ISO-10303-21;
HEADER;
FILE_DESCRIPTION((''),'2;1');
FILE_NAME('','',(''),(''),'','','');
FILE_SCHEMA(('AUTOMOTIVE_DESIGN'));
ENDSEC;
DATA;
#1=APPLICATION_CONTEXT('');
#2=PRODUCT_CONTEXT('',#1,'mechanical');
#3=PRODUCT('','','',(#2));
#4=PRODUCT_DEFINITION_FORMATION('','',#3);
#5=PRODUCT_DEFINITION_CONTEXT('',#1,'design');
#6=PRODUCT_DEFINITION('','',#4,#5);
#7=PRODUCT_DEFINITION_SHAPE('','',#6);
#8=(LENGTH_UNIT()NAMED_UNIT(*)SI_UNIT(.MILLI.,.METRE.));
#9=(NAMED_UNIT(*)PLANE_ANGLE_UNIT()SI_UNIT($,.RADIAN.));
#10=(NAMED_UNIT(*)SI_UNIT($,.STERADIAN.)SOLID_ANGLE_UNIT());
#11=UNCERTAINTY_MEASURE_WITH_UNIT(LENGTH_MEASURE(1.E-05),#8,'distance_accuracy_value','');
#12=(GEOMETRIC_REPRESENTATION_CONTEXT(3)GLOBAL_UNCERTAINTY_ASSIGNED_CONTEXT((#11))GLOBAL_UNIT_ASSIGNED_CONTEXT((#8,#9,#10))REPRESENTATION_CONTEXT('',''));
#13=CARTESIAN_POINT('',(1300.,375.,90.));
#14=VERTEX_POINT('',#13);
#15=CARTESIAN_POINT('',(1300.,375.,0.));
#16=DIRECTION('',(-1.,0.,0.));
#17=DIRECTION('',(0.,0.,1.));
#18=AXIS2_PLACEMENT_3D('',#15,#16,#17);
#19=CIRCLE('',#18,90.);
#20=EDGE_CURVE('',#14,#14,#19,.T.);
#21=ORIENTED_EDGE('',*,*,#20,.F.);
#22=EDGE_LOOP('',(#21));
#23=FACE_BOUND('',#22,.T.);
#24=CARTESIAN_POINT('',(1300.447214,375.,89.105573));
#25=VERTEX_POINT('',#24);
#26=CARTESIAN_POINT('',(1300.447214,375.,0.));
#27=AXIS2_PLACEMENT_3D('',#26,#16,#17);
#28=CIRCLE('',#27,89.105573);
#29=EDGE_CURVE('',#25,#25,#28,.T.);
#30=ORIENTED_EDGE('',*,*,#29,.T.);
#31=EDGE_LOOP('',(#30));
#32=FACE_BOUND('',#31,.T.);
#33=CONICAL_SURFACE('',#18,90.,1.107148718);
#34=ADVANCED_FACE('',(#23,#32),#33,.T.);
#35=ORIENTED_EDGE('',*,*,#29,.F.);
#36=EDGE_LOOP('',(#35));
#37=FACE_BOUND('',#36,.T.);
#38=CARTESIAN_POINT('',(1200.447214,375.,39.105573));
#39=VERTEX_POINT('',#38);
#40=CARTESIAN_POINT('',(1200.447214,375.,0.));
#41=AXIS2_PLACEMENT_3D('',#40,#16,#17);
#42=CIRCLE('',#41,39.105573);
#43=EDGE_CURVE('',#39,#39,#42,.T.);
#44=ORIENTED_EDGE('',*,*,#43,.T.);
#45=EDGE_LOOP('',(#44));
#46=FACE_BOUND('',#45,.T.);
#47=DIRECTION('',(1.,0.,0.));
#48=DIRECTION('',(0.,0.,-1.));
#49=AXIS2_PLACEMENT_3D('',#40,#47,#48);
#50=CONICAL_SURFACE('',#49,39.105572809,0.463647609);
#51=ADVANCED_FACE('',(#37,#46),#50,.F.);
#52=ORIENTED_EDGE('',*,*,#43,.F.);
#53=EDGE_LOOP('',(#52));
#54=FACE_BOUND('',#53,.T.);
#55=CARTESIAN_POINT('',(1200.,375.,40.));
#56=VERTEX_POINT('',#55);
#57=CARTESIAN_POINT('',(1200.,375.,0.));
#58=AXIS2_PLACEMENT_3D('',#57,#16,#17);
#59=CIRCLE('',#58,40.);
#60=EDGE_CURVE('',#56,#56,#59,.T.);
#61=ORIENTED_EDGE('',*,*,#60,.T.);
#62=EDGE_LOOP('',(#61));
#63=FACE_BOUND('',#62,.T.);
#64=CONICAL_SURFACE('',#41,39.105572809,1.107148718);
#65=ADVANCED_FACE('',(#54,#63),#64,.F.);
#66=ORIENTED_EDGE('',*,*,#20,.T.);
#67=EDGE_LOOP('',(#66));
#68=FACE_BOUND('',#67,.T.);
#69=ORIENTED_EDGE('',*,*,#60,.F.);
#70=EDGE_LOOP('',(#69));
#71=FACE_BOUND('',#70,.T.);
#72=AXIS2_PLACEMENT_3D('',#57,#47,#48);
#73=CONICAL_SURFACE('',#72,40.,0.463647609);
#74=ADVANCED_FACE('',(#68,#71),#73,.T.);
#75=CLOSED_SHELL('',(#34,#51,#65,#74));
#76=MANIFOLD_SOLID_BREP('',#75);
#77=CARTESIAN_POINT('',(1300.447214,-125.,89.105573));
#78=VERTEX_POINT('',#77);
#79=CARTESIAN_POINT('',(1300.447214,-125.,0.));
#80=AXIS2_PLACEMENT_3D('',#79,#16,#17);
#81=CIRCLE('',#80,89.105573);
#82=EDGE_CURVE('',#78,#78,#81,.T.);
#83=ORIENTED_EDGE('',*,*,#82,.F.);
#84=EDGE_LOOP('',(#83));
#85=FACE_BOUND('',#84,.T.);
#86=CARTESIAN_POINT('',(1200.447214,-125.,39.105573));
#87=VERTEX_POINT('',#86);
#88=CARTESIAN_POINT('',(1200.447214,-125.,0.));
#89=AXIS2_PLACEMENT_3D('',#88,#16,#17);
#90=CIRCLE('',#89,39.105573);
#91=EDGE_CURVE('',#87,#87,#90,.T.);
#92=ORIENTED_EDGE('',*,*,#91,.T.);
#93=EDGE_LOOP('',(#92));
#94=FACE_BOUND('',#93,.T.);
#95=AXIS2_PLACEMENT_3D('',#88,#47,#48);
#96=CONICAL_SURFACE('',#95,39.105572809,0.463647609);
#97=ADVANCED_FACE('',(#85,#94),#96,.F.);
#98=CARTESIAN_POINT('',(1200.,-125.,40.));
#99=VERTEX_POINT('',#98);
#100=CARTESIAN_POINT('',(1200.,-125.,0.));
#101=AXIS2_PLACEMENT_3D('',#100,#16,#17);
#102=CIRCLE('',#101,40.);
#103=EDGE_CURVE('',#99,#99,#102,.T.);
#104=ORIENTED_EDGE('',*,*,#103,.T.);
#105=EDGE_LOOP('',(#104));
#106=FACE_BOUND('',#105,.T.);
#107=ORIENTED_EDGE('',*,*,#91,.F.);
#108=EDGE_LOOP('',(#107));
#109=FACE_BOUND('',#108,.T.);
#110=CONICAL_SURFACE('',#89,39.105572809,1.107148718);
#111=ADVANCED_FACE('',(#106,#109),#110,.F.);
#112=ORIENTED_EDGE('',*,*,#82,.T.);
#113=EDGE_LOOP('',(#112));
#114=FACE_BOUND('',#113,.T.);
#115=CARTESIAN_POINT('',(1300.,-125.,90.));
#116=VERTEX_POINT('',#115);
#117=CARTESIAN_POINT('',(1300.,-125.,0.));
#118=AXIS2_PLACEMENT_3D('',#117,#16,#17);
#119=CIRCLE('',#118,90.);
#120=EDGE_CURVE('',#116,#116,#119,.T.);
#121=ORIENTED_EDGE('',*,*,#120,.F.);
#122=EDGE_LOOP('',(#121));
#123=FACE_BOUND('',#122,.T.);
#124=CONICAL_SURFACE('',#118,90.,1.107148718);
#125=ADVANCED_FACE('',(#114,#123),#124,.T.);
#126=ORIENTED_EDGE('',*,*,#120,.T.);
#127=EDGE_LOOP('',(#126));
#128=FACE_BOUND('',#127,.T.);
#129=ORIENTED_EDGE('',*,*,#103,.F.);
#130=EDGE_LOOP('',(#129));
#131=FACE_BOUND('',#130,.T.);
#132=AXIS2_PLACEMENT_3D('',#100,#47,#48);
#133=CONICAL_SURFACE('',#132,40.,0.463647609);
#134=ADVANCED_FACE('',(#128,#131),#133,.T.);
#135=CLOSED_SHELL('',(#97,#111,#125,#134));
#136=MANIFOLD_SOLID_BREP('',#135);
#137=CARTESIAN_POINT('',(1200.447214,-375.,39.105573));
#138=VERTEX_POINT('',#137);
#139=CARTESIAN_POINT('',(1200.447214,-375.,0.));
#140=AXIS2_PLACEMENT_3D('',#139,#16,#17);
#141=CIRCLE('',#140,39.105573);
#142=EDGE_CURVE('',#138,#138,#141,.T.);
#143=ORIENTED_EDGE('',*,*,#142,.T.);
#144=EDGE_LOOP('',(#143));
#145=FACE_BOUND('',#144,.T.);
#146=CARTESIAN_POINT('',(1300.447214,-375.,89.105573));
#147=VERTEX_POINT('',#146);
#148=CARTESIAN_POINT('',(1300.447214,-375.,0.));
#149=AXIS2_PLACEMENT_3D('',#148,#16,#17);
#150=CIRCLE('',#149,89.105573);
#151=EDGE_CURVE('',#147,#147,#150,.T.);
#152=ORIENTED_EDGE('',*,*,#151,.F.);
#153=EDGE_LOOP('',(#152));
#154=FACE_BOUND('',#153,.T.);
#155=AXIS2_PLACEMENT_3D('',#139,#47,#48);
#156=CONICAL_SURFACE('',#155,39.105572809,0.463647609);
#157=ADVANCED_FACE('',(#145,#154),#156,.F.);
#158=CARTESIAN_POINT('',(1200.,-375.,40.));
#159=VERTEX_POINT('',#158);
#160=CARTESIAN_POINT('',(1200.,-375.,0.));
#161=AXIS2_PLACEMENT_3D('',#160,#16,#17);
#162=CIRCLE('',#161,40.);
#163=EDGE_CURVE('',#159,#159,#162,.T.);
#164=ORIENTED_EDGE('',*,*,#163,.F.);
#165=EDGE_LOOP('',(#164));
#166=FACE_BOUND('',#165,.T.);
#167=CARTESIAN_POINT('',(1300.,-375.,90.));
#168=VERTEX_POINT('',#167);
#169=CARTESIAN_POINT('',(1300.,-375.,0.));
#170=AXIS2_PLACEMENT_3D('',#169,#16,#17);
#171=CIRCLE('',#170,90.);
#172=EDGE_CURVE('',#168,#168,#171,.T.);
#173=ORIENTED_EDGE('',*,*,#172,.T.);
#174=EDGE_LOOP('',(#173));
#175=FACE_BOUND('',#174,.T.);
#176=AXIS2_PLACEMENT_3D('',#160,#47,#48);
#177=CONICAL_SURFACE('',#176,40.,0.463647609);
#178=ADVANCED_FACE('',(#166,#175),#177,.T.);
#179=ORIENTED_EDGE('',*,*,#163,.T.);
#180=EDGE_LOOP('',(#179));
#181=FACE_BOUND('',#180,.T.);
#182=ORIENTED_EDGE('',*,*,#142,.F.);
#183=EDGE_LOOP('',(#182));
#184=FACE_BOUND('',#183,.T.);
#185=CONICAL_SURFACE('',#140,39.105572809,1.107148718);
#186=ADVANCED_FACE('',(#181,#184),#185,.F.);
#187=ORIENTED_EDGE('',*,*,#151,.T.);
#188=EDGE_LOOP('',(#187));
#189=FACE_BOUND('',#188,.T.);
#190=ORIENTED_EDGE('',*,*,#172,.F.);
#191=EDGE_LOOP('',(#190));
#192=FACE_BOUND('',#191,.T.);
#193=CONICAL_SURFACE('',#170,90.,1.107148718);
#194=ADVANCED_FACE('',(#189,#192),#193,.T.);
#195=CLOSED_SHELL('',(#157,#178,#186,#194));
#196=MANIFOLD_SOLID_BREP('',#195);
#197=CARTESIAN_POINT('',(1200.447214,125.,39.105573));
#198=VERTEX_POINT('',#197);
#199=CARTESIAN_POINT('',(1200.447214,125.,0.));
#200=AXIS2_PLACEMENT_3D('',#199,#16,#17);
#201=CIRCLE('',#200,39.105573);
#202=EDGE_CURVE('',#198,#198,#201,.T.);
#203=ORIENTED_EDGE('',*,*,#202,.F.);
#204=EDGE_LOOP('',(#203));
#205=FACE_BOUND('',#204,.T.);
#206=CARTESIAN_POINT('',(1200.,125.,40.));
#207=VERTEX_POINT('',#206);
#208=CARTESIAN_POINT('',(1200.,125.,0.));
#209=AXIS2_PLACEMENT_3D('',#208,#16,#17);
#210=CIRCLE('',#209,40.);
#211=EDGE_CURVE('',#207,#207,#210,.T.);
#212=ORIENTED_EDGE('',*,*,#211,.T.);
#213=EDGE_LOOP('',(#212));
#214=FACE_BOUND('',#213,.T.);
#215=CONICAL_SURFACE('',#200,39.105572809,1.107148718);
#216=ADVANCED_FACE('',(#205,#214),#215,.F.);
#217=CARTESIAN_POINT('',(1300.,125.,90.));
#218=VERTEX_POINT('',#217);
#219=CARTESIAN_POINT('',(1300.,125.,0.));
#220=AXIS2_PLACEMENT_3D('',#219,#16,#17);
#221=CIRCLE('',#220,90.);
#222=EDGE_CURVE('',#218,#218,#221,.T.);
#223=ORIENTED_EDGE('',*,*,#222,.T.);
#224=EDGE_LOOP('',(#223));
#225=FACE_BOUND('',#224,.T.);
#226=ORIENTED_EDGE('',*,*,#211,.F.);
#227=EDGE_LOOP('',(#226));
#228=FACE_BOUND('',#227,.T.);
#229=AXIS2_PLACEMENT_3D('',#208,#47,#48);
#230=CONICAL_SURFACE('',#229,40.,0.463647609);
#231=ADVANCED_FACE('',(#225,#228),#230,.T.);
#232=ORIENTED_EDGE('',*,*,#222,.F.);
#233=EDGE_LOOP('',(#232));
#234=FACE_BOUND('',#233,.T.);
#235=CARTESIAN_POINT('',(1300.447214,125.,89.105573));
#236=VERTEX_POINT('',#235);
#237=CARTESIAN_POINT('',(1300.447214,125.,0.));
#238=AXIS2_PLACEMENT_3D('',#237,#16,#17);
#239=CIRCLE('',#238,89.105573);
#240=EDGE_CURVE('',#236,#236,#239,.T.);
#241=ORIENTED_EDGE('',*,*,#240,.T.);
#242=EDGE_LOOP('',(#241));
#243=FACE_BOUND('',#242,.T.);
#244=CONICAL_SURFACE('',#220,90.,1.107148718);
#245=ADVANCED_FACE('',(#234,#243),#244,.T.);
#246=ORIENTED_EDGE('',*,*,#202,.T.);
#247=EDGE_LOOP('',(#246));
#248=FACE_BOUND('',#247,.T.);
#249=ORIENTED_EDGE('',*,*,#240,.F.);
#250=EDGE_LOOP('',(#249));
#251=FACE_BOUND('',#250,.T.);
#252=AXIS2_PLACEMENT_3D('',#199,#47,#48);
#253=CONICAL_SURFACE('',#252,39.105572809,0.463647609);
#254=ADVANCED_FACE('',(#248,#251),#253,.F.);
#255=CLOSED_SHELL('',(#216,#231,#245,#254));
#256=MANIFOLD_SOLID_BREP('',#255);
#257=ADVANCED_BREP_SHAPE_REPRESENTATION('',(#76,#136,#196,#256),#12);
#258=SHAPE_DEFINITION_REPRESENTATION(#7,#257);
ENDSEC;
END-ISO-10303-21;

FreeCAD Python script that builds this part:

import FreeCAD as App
import Part
import Sketcher
Q = App.Units.Quantity


def add_polygon(sketch, points):
    """Adds a closed chain of lines whose ends are joined by coincident constraints."""
    first, n = sketch.GeometryCount, len(points)
    for a, b in zip(points, points[1:] + points[:1]):
        sketch.addGeometry(Part.LineSegment(App.Vector(*a, 0), App.Vector(*b, 0)), False)
    for i in range(n):
        sketch.addConstraint(Sketcher.Constraint("Coincident", first + i, 2, first + (i + 1) % n, 1))

doc = App.newDocument("Part")
body = doc.addObject("PartDesign::Body", "Body")

# Sketch on XY plane
sketch1 = body.newObject("Sketcher::SketchObject", "Sketch")
sketch1.AttachmentSupport = (doc.getObject("XY_Plane"), [""])
sketch1.MapMode = "FlatFace"
add_polygon(sketch1, [(1300, -285), (1200, -335), (1200.447214, -335.894427), (1300.447214, -285.894427)])  # lines 0-3
sketch1.addGeometry(Part.LineSegment(App.Vector(1200, -375, 0), App.Vector(1300.447214, -375, 0)), True)  # axis
sketch1.addConstraint([
    Sketcher.Constraint("Horizontal", 4),
    Sketcher.Constraint("Perpendicular", 0, 1),
    Sketcher.Constraint("Perpendicular", 1, 2),
    Sketcher.Constraint("Perpendicular", 2, 3),
    Sketcher.Constraint("Vertical", 0, 2, 4, 1),
    Sketcher.Constraint("Vertical", 2, 2, 4, 2),
    Sketcher.Constraint("Distance", 1, Q("1 mm")),
    Sketcher.Constraint("DistanceX", -1, 1, 0, 2, Q("1200 mm")),
    Sketcher.Constraint("DistanceY", 0, 2, -1, 1, Q("335 mm")),
    Sketcher.Constraint("DistanceX", -1, 1, 3, 2, Q("1300 mm")),
    Sketcher.Constraint("DistanceY", 3, 2, -1, 1, Q("285 mm")),
    Sketcher.Constraint("DistanceY", 4, 1, -1, 1, Q("375 mm")),
])
revolution = body.newObject("PartDesign::Revolution", "Revolution")
revolution.Profile = sketch1
revolution.ReferenceAxis = (sketch1, ["Axis0"])
revolution.Angle = 360
body2 = doc.addObject("PartDesign::Body", "Body001")

# Sketch on XY plane
sketch2 = body2.newObject("Sketcher::SketchObject", "Sketch001")
sketch2.AttachmentSupport = (doc.getObject("XY_Plane001"), [""])
sketch2.MapMode = "FlatFace"
add_polygon(sketch2, [(1300, -35), (1200, -85), (1200.447214, -85.894427), (1300.447214, -35.894427)])  # lines 0-3
sketch2.addGeometry(Part.LineSegment(App.Vector(1200, -125, 0), App.Vector(1300.447214, -125, 0)), True)  # axis
sketch2.addConstraint([
    Sketcher.Constraint("Horizontal", 4),
    Sketcher.Constraint("Perpendicular", 0, 1),
    Sketcher.Constraint("Perpendicular", 1, 2),
    Sketcher.Constraint("Perpendicular", 2, 3),
    Sketcher.Constraint("Vertical", 0, 2, 4, 1),
    Sketcher.Constraint("Vertical", 2, 2, 4, 2),
    Sketcher.Constraint("Distance", 1, Q("1 mm")),
    Sketcher.Constraint("DistanceX", -1, 1, 0, 2, Q("1200 mm")),
    Sketcher.Constraint("DistanceY", 0, 2, -1, 1, Q("85 mm")),
    Sketcher.Constraint("DistanceX", -1, 1, 3, 2, Q("1300 mm")),
    Sketcher.Constraint("DistanceY", 3, 2, -1, 1, Q("35 mm")),
    Sketcher.Constraint("DistanceY", 4, 1, -1, 1, Q("125 mm")),
])
revolution2 = body2.newObject("PartDesign::Revolution", "Revolution001")
revolution2.Profile = sketch2
revolution2.ReferenceAxis = (sketch2, ["Axis0"])
revolution2.Angle = 360
body3 = doc.addObject("PartDesign::Body", "Body002")

# Sketch on XY plane
sketch3 = body3.newObject("Sketcher::SketchObject", "Sketch002")
sketch3.AttachmentSupport = (doc.getObject("XY_Plane002"), [""])
sketch3.MapMode = "FlatFace"
add_polygon(sketch3, [(1300, 215), (1200, 165), (1200.447214, 164.105573), (1300.447214, 214.105573)])  # lines 0-3
sketch3.addGeometry(Part.LineSegment(App.Vector(1200, 125, 0), App.Vector(1300.447214, 125, 0)), True)  # axis
sketch3.addConstraint([
    Sketcher.Constraint("Horizontal", 4),
    Sketcher.Constraint("Perpendicular", 0, 1),
    Sketcher.Constraint("Perpendicular", 1, 2),
    Sketcher.Constraint("Perpendicular", 2, 3),
    Sketcher.Constraint("Vertical", 0, 2, 4, 1),
    Sketcher.Constraint("Vertical", 2, 2, 4, 2),
    Sketcher.Constraint("Distance", 1, Q("1 mm")),
    Sketcher.Constraint("DistanceX", -1, 1, 0, 2, Q("1200 mm")),
    Sketcher.Constraint("DistanceY", -1, 1, 0, 2, Q("165 mm")),
    Sketcher.Constraint("DistanceX", -1, 1, 3, 2, Q("1300 mm")),
    Sketcher.Constraint("DistanceY", -1, 1, 3, 2, Q("215 mm")),
    Sketcher.Constraint("DistanceY", -1, 1, 4, 1, Q("125 mm")),
])
revolution3 = body3.newObject("PartDesign::Revolution", "Revolution002")
revolution3.Profile = sketch3
revolution3.ReferenceAxis = (sketch3, ["Axis0"])
revolution3.Angle = 360
body4 = doc.addObject("PartDesign::Body", "Body003")

# Sketch on XY plane
sketch4 = body4.newObject("Sketcher::SketchObject", "Sketch003")
sketch4.AttachmentSupport = (doc.getObject("XY_Plane003"), [""])
sketch4.MapMode = "FlatFace"
add_polygon(sketch4, [(1300, 465), (1200, 415), (1200.447214, 414.105573), (1300.447214, 464.105573)])  # lines 0-3
sketch4.addGeometry(Part.LineSegment(App.Vector(1200, 375, 0), App.Vector(1300.447214, 375, 0)), True)  # axis
sketch4.addConstraint([
    Sketcher.Constraint("Horizontal", 4),
    Sketcher.Constraint("Perpendicular", 0, 1),
    Sketcher.Constraint("Perpendicular", 1, 2),
    Sketcher.Constraint("Perpendicular", 2, 3),
    Sketcher.Constraint("Vertical", 0, 2, 4, 1),
    Sketcher.Constraint("Vertical", 2, 2, 4, 2),
    Sketcher.Constraint("Distance", 1, Q("1 mm")),
    Sketcher.Constraint("DistanceX", -1, 1, 0, 2, Q("1200 mm")),
    Sketcher.Constraint("DistanceY", -1, 1, 0, 2, Q("415 mm")),
    Sketcher.Constraint("DistanceX", -1, 1, 3, 2, Q("1300 mm")),
    Sketcher.Constraint("DistanceY", -1, 1, 3, 2, Q("465 mm")),
    Sketcher.Constraint("DistanceY", -1, 1, 4, 1, Q("375 mm")),
])
revolution4 = body4.newObject("PartDesign::Revolution", "Revolution003")
revolution4.Profile = sketch4
revolution4.ReferenceAxis = (sketch4, ["Axis0"])
revolution4.Angle = 360

doc.recompute()
